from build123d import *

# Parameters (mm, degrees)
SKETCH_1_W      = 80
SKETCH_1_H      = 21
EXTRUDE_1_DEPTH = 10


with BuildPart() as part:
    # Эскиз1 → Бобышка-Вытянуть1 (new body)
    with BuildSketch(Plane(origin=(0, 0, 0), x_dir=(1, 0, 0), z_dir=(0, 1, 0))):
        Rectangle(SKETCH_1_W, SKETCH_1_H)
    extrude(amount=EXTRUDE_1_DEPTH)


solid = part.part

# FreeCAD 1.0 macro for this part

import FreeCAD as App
import Part
import Sketcher
from FreeCAD import Vector
Q = App.Units.Quantity


def add_polygon(sketch, points):
    """Adds a closed chain of lines whose ends are joined by coincident constraints."""
    first, n = sketch.GeometryCount, len(points)
    for a, b in zip(points, points[1:] + points[:1]):
        sketch.addGeometry(Part.LineSegment(App.Vector(*a, 0), App.Vector(*b, 0)), False)
    for i in range(n):
        sketch.addConstraint(Sketcher.Constraint("Coincident", first + i, 2, first + (i + 1) % n, 1))

doc = App.newDocument("Part")
params = doc.addObject("Spreadsheet::Sheet", "Params")
for row, (alias, value) in enumerate([
    ("sketch1_width", "80 mm"),
    ("sketch1_height", "21 mm"),
    ("pad1_length", "10 mm"),
], start=1):
    params.set(f"A{row}", alias)
    params.set(f"B{row}", "=" + value)
    params.setAlias(f"B{row}", alias)

body = doc.addObject("PartDesign::Body", "Body")

# Sketch on XZ plane
sketch1 = body.newObject("Sketcher::SketchObject", "Sketch")
sketch1.AttachmentSupport = (doc.getObject("XZ_Plane"), [""])
sketch1.MapMode = "FlatFace"
add_polygon(sketch1, [(-40, -10.5), (-40, 10.5), (40, 10.5), (40, -10.5)])  # lines 0-3
sketch1.addConstraint([
    Sketcher.Constraint("Vertical", 0),
    Sketcher.Constraint("Horizontal", 1),
    Sketcher.Constraint("Vertical", 2),
    Sketcher.Constraint("Horizontal", 3),
    Sketcher.Constraint("Symmetric", 0, 2, 2, 2, -1, 1),
    Sketcher.Constraint("DistanceX", 1, 1, 1, 2, Q("80 mm")),
    Sketcher.Constraint("DistanceY", 0, 1, 0, 2, Q("21 mm")),
])
sketch1.setExpression("Constraints[9]", "Params.sketch1_width")
sketch1.setExpression("Constraints[10]", "Params.sketch1_height")
pad1 = body.newObject("PartDesign::Pad", "Pad")
pad1.Profile = sketch1
pad1.setExpression("Length", "Params.pad1_length")
pad1.Reversed = True

doc.recompute()
